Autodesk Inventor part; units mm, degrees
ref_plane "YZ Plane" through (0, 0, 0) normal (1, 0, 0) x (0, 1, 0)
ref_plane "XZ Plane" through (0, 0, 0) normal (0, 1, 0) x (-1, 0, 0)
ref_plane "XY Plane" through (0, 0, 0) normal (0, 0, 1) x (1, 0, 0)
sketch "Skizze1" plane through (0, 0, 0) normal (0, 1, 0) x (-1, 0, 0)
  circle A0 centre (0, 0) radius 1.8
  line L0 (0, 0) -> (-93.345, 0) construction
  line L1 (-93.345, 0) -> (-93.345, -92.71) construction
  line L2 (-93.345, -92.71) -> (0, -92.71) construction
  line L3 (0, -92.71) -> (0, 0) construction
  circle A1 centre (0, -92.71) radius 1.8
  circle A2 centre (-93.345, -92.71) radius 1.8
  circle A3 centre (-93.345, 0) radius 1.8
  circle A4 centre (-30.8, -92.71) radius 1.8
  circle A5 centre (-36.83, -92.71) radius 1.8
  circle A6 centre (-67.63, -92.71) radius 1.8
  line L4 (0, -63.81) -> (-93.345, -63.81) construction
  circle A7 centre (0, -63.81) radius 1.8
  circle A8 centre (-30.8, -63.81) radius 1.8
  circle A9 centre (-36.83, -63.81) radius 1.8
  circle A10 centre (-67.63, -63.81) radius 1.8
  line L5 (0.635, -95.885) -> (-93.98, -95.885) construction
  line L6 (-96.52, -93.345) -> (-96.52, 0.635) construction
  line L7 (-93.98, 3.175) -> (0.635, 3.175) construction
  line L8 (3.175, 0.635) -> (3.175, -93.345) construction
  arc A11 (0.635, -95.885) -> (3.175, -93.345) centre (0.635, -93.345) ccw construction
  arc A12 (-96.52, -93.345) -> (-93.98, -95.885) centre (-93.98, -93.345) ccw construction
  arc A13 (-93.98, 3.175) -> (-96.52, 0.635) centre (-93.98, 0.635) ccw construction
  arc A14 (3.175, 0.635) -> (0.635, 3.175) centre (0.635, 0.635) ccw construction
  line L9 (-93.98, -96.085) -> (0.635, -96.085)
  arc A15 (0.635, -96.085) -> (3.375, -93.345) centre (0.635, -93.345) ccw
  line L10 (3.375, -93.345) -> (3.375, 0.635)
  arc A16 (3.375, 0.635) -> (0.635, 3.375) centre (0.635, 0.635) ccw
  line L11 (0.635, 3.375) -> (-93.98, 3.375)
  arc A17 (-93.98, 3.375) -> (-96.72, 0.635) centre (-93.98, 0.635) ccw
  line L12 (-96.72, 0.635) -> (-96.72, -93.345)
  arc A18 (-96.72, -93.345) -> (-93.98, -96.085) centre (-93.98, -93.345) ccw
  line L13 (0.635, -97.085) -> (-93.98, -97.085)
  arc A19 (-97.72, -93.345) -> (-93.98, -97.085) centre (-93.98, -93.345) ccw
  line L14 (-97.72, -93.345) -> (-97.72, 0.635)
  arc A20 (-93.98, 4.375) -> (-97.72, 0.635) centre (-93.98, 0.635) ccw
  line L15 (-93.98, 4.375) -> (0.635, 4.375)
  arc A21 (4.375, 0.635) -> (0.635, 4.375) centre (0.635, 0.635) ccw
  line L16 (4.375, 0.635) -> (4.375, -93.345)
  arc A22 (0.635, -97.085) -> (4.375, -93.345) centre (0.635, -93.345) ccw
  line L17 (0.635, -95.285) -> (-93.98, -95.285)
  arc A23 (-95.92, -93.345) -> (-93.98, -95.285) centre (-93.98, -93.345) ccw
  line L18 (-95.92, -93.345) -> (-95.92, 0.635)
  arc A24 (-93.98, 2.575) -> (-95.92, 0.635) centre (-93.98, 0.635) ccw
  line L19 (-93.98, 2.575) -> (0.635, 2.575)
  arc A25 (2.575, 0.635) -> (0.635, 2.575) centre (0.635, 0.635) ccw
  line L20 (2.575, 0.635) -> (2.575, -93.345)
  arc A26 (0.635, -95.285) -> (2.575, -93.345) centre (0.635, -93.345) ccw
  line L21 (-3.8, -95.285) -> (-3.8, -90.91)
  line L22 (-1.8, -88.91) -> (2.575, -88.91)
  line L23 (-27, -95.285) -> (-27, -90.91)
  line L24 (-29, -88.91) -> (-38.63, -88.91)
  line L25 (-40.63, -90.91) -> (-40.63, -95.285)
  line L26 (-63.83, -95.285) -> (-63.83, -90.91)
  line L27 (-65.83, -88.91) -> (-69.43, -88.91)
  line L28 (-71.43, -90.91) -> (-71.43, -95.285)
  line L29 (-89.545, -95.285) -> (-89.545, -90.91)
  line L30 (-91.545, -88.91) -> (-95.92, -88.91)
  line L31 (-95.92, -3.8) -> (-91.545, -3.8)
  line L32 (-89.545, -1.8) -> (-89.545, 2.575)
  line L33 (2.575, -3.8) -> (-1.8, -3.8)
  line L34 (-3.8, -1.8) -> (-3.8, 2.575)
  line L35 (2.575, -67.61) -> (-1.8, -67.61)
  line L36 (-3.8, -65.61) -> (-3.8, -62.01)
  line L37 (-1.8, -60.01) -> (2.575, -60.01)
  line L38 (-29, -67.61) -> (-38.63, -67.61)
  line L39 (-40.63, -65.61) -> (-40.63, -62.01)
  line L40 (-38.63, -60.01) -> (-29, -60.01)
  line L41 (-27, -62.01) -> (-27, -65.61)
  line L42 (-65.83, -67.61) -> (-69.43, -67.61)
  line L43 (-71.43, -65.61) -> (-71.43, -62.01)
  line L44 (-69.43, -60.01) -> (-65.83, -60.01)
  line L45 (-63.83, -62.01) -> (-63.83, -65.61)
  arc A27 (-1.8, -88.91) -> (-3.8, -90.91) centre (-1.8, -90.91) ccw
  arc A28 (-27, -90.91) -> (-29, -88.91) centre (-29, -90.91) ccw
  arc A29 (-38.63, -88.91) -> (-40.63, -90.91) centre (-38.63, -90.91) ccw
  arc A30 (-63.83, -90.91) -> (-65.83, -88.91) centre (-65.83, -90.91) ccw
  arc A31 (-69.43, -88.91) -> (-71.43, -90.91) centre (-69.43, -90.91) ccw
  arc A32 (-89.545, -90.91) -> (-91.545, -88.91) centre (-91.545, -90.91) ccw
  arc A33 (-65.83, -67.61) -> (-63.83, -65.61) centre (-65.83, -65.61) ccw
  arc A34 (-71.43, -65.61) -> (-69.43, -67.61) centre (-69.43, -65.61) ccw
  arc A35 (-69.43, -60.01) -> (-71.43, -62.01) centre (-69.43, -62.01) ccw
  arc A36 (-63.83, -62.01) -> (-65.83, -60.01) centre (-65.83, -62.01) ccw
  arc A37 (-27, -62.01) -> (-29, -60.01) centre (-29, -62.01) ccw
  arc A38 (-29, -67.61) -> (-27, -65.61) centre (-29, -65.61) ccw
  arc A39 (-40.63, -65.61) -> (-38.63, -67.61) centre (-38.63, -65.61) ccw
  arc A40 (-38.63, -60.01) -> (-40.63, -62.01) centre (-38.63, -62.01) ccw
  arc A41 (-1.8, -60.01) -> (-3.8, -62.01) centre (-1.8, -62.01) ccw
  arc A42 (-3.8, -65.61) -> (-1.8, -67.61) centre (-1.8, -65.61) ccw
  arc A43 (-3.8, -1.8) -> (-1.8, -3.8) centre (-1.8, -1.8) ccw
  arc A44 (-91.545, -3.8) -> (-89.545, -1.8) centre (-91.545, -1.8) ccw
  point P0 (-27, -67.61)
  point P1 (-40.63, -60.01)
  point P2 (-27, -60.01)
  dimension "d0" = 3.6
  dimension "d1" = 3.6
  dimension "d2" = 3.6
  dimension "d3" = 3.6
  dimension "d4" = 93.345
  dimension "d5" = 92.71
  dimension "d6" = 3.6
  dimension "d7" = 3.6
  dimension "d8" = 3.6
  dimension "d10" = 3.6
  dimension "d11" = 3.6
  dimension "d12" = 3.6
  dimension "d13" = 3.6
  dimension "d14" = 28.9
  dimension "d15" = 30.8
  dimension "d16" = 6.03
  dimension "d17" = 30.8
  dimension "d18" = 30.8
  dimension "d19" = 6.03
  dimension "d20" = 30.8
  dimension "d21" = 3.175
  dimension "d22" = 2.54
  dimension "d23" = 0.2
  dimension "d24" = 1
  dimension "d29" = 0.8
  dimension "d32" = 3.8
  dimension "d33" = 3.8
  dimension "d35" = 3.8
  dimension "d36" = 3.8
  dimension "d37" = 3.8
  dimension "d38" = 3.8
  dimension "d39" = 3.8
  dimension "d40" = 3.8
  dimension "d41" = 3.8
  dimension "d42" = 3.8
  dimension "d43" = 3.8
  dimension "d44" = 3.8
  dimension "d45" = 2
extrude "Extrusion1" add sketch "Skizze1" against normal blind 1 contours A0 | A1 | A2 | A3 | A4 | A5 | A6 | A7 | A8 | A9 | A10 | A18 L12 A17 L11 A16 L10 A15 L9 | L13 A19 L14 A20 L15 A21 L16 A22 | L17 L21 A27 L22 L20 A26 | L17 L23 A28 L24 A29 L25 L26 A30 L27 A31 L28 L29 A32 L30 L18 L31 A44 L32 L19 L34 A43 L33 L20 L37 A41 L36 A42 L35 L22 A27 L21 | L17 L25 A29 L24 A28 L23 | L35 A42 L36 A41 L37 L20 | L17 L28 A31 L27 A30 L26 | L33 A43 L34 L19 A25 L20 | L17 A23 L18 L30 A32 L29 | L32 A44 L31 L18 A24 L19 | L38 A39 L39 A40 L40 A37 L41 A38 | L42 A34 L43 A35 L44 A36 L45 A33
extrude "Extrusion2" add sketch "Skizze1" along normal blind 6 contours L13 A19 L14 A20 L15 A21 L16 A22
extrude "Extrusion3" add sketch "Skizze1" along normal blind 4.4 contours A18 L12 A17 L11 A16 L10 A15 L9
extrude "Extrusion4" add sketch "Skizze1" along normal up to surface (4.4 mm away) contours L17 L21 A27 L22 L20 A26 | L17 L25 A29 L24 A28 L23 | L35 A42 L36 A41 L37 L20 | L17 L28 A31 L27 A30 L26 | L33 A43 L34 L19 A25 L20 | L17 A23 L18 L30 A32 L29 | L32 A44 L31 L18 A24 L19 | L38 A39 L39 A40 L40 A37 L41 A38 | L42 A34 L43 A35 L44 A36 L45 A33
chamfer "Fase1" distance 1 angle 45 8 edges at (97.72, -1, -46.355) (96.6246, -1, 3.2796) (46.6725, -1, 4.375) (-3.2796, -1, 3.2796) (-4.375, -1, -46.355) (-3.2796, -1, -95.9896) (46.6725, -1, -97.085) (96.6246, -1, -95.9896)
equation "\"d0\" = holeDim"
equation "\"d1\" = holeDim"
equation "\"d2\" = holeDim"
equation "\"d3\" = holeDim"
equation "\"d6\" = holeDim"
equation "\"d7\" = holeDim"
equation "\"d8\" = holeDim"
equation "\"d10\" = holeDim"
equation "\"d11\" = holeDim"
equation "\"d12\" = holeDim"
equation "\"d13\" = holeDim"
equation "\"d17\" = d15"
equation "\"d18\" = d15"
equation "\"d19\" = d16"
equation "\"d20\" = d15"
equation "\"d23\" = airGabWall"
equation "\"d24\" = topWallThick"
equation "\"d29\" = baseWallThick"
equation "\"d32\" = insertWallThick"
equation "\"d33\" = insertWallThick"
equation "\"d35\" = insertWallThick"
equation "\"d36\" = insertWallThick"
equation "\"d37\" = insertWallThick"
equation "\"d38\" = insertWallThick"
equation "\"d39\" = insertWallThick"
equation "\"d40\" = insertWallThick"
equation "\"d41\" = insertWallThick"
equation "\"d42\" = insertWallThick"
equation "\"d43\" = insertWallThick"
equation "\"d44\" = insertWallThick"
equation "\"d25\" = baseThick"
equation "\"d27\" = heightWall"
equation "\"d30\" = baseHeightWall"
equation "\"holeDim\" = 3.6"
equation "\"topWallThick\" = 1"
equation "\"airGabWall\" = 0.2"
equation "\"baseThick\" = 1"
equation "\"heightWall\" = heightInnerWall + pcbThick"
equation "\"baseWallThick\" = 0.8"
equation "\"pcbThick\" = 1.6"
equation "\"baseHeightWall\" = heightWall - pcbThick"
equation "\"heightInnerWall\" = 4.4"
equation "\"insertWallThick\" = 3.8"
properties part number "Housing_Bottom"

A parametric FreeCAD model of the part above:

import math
import FreeCAD as App
import Part
import Sketcher


def edges_at(feature, points):
    """Names of the edges that pass closest to the given points."""
    edges = feature.Shape.Edges
    near = lambda p: min(range(len(edges)), key=lambda i: edges[i].distToShape(Part.Vertex(*p))[0])
    return sorted({f"Edge{near(p) + 1}" for p in points})

doc = App.newDocument("Part")
body = doc.addObject("PartDesign::Body", "Body")

sketch1 = body.newObject("Sketcher::SketchObject", "Sketch")
sketch1.AttachmentSupport = (doc.getObject("XZ_Plane"), [""])
sketch1.MapMode = "FlatFace"
sketch1.addGeometry(Part.LineSegment(App.Vector(94, -97.1, 0), App.Vector(-0.6, -97.1, 0)), False)
sketch1.addGeometry(Part.ArcOfCircle(Part.Circle(App.Vector(-0.6, -93.3, 0), App.Vector(0, 0, 1), 3.7), math.radians(180), math.radians(270)), False)
sketch1.addGeometry(Part.LineSegment(App.Vector(-4.4, -93.3, 0), App.Vector(-4.4, 0.6, 0)), False)
sketch1.addGeometry(Part.ArcOfCircle(Part.Circle(App.Vector(-0.6, 0.6, 0), App.Vector(0, 0, 1), 3.7), math.radians(90), math.radians(180)), False)
sketch1.addGeometry(Part.LineSegment(App.Vector(-0.6, 4.4, 0), App.Vector(94, 4.4, 0)), False)
sketch1.addGeometry(Part.ArcOfCircle(Part.Circle(App.Vector(94, 0.6, 0), App.Vector(0, 0, 1), 3.7), math.radians(0), math.radians(90)), False)
sketch1.addGeometry(Part.LineSegment(App.Vector(97.7, 0.6, 0), App.Vector(97.7, -93.3, 0)), False)
sketch1.addGeometry(Part.ArcOfCircle(Part.Circle(App.Vector(94, -93.3, 0), App.Vector(0, 0, 1), 3.7), math.radians(-90), math.radians(0)), False)
sketch1.addConstraint(Sketcher.Constraint("Tangent", 0, 2, 1, 2))
sketch1.addConstraint(Sketcher.Constraint("Tangent", 1, 1, 2, 1))
sketch1.addConstraint(Sketcher.Constraint("Tangent", 2, 2, 3, 2))
sketch1.addConstraint(Sketcher.Constraint("Tangent", 3, 1, 4, 1))
sketch1.addConstraint(Sketcher.Constraint("Tangent", 4, 2, 5, 2))
sketch1.addConstraint(Sketcher.Constraint("Tangent", 5, 1, 6, 1))
sketch1.addConstraint(Sketcher.Constraint("Tangent", 6, 2, 7, 2))
sketch1.addConstraint(Sketcher.Constraint("Tangent", 7, 1, 0, 1))
sketch1.addConstraint(Sketcher.Constraint("Horizontal", 0))
sketch1.addConstraint(Sketcher.Constraint("Vertical", 2))
sketch1.addConstraint(Sketcher.Constraint("Horizontal", 4))
sketch1.addConstraint(Sketcher.Constraint("Vertical", 6))
sketch1.addConstraint(Sketcher.Constraint("Equal", 1, 3))
sketch1.addConstraint(Sketcher.Constraint("Equal", 3, 5))
sketch1.addConstraint(Sketcher.Constraint("Equal", 5, 7))
sketch1.addConstraint(Sketcher.Constraint("Radius", 1, 3.74))
sketch1.addConstraint(Sketcher.Constraint("DistanceY", 1, 3, -1, 1, 93.345))
sketch1.addConstraint(Sketcher.Constraint("DistanceY", 2, 1, 2, 2, 93.98))
sketch1.addConstraint(Sketcher.Constraint("DistanceX", 0, 2, 0, 1, 94.615))
sketch1.addConstraint(Sketcher.Constraint("DistanceX", -1, 1, 5, 3, 93.98))
pad1 = body.newObject("PartDesign::Pad", "Pad")
pad1.Profile = sketch1
pad1.Length = 1

sketch2 = body.newObject("Sketcher::SketchObject", "Sketch001")
sketch2.AttachmentSupport = (doc.getObject("XZ_Plane"), [""])
sketch2.MapMode = "FlatFace"
sketch2.addGeometry(Part.LineSegment(App.Vector(94, -97.1, 0), App.Vector(-0.6, -97.1, 0)), False)
sketch2.addGeometry(Part.ArcOfCircle(Part.Circle(App.Vector(-0.6, -93.3, 0), App.Vector(0, 0, 1), 3.7), math.radians(180), math.radians(270)), False)
sketch2.addGeometry(Part.LineSegment(App.Vector(-4.4, -93.3, 0), App.Vector(-4.4, 0.6, 0)), False)
sketch2.addGeometry(Part.ArcOfCircle(Part.Circle(App.Vector(-0.6, 0.6, 0), App.Vector(0, 0, 1), 3.7), math.radians(90), math.radians(180)), False)
sketch2.addGeometry(Part.LineSegment(App.Vector(-0.6, 4.4, 0), App.Vector(94, 4.4, 0)), False)
sketch2.addGeometry(Part.ArcOfCircle(Part.Circle(App.Vector(94, 0.6, 0), App.Vector(0, 0, 1), 3.7), math.radians(0), math.radians(90)), False)
sketch2.addGeometry(Part.LineSegment(App.Vector(97.7, 0.6, 0), App.Vector(97.7, -93.3, 0)), False)
sketch2.addGeometry(Part.ArcOfCircle(Part.Circle(App.Vector(94, -93.3, 0), App.Vector(0, 0, 1), 3.7), math.radians(-90), math.radians(0)), False)
sketch2.addGeometry(Part.LineSegment(App.Vector(-0.6, -96.1, 0), App.Vector(94, -96.1, 0)), False)
sketch2.addGeometry(Part.ArcOfCircle(Part.Circle(App.Vector(94, -93.3, 0), App.Vector(0, 0, 1), 2.7), math.radians(-90), math.radians(0)), False)
sketch2.addGeometry(Part.LineSegment(App.Vector(96.7, -93.3, 0), App.Vector(96.7, 0.6, 0)), False)
sketch2.addGeometry(Part.ArcOfCircle(Part.Circle(App.Vector(94, 0.6, 0), App.Vector(0, 0, 1), 2.7), math.radians(0), math.radians(90)), False)
sketch2.addGeometry(Part.LineSegment(App.Vector(94, 3.4, 0), App.Vector(-0.6, 3.4, 0)), False)
sketch2.addGeometry(Part.ArcOfCircle(Part.Circle(App.Vector(-0.6, 0.6, 0), App.Vector(0, 0, 1), 2.7), math.radians(90), math.radians(180)), False)
sketch2.addGeometry(Part.LineSegment(App.Vector(-3.4, 0.6, 0), App.Vector(-3.4, -93.3, 0)), False)
sketch2.addGeometry(Part.ArcOfCircle(Part.Circle(App.Vector(-0.6, -93.3, 0), App.Vector(0, 0, 1), 2.7), math.radians(180), math.radians(270)), False)
sketch2.addConstraint(Sketcher.Constraint("Tangent", 0, 2, 1, 2))
sketch2.addConstraint(Sketcher.Constraint("Tangent", 1, 1, 2, 1))
sketch2.addConstraint(Sketcher.Constraint("Tangent", 2, 2, 3, 2))
sketch2.addConstraint(Sketcher.Constraint("Tangent", 3, 1, 4, 1))
sketch2.addConstraint(Sketcher.Constraint("Tangent", 4, 2, 5, 2))
sketch2.addConstraint(Sketcher.Constraint("Tangent", 5, 1, 6, 1))
sketch2.addConstraint(Sketcher.Constraint("Tangent", 6, 2, 7, 2))
sketch2.addConstraint(Sketcher.Constraint("Tangent", 7, 1, 0, 1))
sketch2.addConstraint(Sketcher.Constraint("Tangent", 8, 2, 9, 1))
sketch2.addConstraint(Sketcher.Constraint("Tangent", 9, 2, 10, 1))
sketch2.addConstraint(Sketcher.Constraint("Tangent", 10, 2, 11, 1))
sketch2.addConstraint(Sketcher.Constraint("Tangent", 11, 2, 12, 1))
sketch2.addConstraint(Sketcher.Constraint("Tangent", 12, 2, 13, 1))
sketch2.addConstraint(Sketcher.Constraint("Tangent", 13, 2, 14, 1))
sketch2.addConstraint(Sketcher.Constraint("Tangent", 14, 2, 15, 1))
sketch2.addConstraint(Sketcher.Constraint("Tangent", 15, 2, 8, 1))
sketch2.addConstraint(Sketcher.Constraint("Horizontal", 0))
sketch2.addConstraint(Sketcher.Constraint("Vertical", 2))
sketch2.addConstraint(Sketcher.Constraint("Horizontal", 4))
sketch2.addConstraint(Sketcher.Constraint("Vertical", 6))
sketch2.addConstraint(Sketcher.Constraint("Horizontal", 8))
sketch2.addConstraint(Sketcher.Constraint("Vertical", 10))
sketch2.addConstraint(Sketcher.Constraint("Horizontal", 12))
sketch2.addConstraint(Sketcher.Constraint("Vertical", 14))
sketch2.addConstraint(Sketcher.Constraint("Coincident", 9, 3, 7, 3))
sketch2.addConstraint(Sketcher.Constraint("Coincident", 11, 3, 5, 3))
sketch2.addConstraint(Sketcher.Constraint("Coincident", 13, 3, 3, 3))
sketch2.addConstraint(Sketcher.Constraint("Equal", 1, 3))
sketch2.addConstraint(Sketcher.Constraint("Equal", 3, 5))
sketch2.addConstraint(Sketcher.Constraint("Equal", 5, 7))
sketch2.addConstraint(Sketcher.Constraint("Equal", 13, 15))
sketch2.addConstraint(Sketcher.Constraint("DistanceY", 7, 1, 8, 2, 1.0))
sketch2.addConstraint(Sketcher.Constraint("Radius", 1, 3.74))
sketch2.addConstraint(Sketcher.Constraint("DistanceY", 1, 3, -1, 1, 93.345))
sketch2.addConstraint(Sketcher.Constraint("DistanceY", 2, 1, 2, 2, 93.98))
sketch2.addConstraint(Sketcher.Constraint("DistanceX", 0, 2, 0, 1, 94.615))
sketch2.addConstraint(Sketcher.Constraint("DistanceX", -1, 1, 5, 3, 93.98))
pad2 = body.newObject("PartDesign::Pad", "Pad001")
pad2.Profile = sketch2
pad2.Length = 6
pad2.Reversed = True

sketch3 = body.newObject("Sketcher::SketchObject", "Sketch002")
sketch3.AttachmentSupport = (doc.getObject("XZ_Plane"), [""])
sketch3.MapMode = "FlatFace"
sketch3.addGeometry(Part.ArcOfCircle(Part.Circle(App.Vector(94, -93.3, 0), App.Vector(0, 0, 1), 2.7), math.radians(-90), math.radians(0)), False)
sketch3.addGeometry(Part.LineSegment(App.Vector(94, -96.1, 0), App.Vector(-0.6, -96.1, 0)), False)
sketch3.addGeometry(Part.ArcOfCircle(Part.Circle(App.Vector(-0.6, -93.3, 0), App.Vector(0, 0, 1), 2.7), math.radians(180), math.radians(270)), False)
sketch3.addGeometry(Part.LineSegment(App.Vector(-3.4, -93.3, 0), App.Vector(-3.4, 0.6, 0)), False)
sketch3.addGeometry(Part.ArcOfCircle(Part.Circle(App.Vector(-0.6, 0.6, 0), App.Vector(0, 0, 1), 2.7), math.radians(90), math.radians(180)), False)
sketch3.addGeometry(Part.LineSegment(App.Vector(-0.6, 3.4, 0), App.Vector(94, 3.4, 0)), False)
sketch3.addGeometry(Part.ArcOfCircle(Part.Circle(App.Vector(94, 0.6, 0), App.Vector(0, 0, 1), 2.7), math.radians(0), math.radians(90)), False)
sketch3.addGeometry(Part.LineSegment(App.Vector(96.7, 0.6, 0), App.Vector(96.7, -93.3, 0)), False)
sketch3.addGeometry(Part.ArcOfCircle(Part.Circle(App.Vector(-0.6, -93.3, 0), App.Vector(0, 0, 1), 1.9), math.radians(180), math.radians(270)), False)
sketch3.addGeometry(Part.LineSegment(App.Vector(-0.6, -95.3, 0), App.Vector(94, -95.3, 0)), False)
sketch3.addGeometry(Part.ArcOfCircle(Part.Circle(App.Vector(94, -93.3, 0), App.Vector(0, 0, 1), 1.9), math.radians(-90), math.radians(0)), False)
sketch3.addGeometry(Part.LineSegment(App.Vector(95.9, -93.3, 0), App.Vector(95.9, 0.6, 0)), False)
sketch3.addGeometry(Part.ArcOfCircle(Part.Circle(App.Vector(94, 0.6, 0), App.Vector(0, 0, 1), 1.9), math.radians(0), math.radians(90)), False)
sketch3.addGeometry(Part.LineSegment(App.Vector(94, 2.6, 0), App.Vector(-0.6, 2.6, 0)), False)
sketch3.addGeometry(Part.ArcOfCircle(Part.Circle(App.Vector(-0.6, 0.6, 0), App.Vector(0, 0, 1), 1.9), math.radians(90), math.radians(180)), False)
sketch3.addGeometry(Part.LineSegment(App.Vector(-2.6, 0.6, 0), App.Vector(-2.6, -93.3, 0)), False)
sketch3.addConstraint(Sketcher.Constraint("Tangent", 0, 1, 1, 1))
sketch3.addConstraint(Sketcher.Constraint("Tangent", 1, 2, 2, 2))
sketch3.addConstraint(Sketcher.Constraint("Tangent", 2, 1, 3, 1))
sketch3.addConstraint(Sketcher.Constraint("Tangent", 3, 2, 4, 2))
sketch3.addConstraint(Sketcher.Constraint("Tangent", 4, 1, 5, 1))
sketch3.addConstraint(Sketcher.Constraint("Tangent", 5, 2, 6, 2))
sketch3.addConstraint(Sketcher.Constraint("Tangent", 6, 1, 7, 1))
sketch3.addConstraint(Sketcher.Constraint("Tangent", 7, 2, 0, 2))
sketch3.addConstraint(Sketcher.Constraint("Tangent", 8, 2, 9, 1))
sketch3.addConstraint(Sketcher.Constraint("Tangent", 9, 2, 10, 1))
sketch3.addConstraint(Sketcher.Constraint("Tangent", 10, 2, 11, 1))
sketch3.addConstraint(Sketcher.Constraint("Tangent", 11, 2, 12, 1))
sketch3.addConstraint(Sketcher.Constraint("Tangent", 12, 2, 13, 1))
sketch3.addConstraint(Sketcher.Constraint("Tangent", 13, 2, 14, 1))
sketch3.addConstraint(Sketcher.Constraint("Tangent", 14, 2, 15, 1))
sketch3.addConstraint(Sketcher.Constraint("Tangent", 15, 2, 8, 1))
sketch3.addConstraint(Sketcher.Constraint("Horizontal", 1))
sketch3.addConstraint(Sketcher.Constraint("Vertical", 3))
sketch3.addConstraint(Sketcher.Constraint("Horizontal", 5))
sketch3.addConstraint(Sketcher.Constraint("Vertical", 7))
sketch3.addConstraint(Sketcher.Constraint("Horizontal", 9))
sketch3.addConstraint(Sketcher.Constraint("Vertical", 11))
sketch3.addConstraint(Sketcher.Constraint("Horizontal", 13))
sketch3.addConstraint(Sketcher.Constraint("Vertical", 15))
sketch3.addConstraint(Sketcher.Constraint("Coincident", 8, 3, 2, 3))
sketch3.addConstraint(Sketcher.Constraint("Coincident", 10, 3, 0, 3))
sketch3.addConstraint(Sketcher.Constraint("Coincident", 12, 3, 6, 3))
sketch3.addConstraint(Sketcher.Constraint("Equal", 0, 2))
sketch3.addConstraint(Sketcher.Constraint("Equal", 2, 4))
sketch3.addConstraint(Sketcher.Constraint("Equal", 4, 6))
sketch3.addConstraint(Sketcher.Constraint("Equal", 12, 14))
sketch3.addConstraint(Sketcher.Constraint("DistanceY", 1, 2, 8, 2, 0.8))
sketch3.addConstraint(Sketcher.Constraint("Radius", 0, 2.74))
sketch3.addConstraint(Sketcher.Constraint("DistanceY", 0, 3, -1, 1, 93.345))
sketch3.addConstraint(Sketcher.Constraint("DistanceY", 3, 1, 3, 2, 93.98))
sketch3.addConstraint(Sketcher.Constraint("DistanceX", 1, 2, 1, 1, 94.615))
sketch3.addConstraint(Sketcher.Constraint("DistanceX", -1, 1, 0, 3, 93.98))
pad3 = body.newObject("PartDesign::Pad", "Pad002")
pad3.Profile = sketch3
pad3.Length = 4.4
pad3.Reversed = True

sketch4 = body.newObject("Sketcher::SketchObject", "Sketch003")
sketch4.AttachmentSupport = (doc.getObject("XZ_Plane"), [""])
sketch4.MapMode = "FlatFace"
sketch4.addGeometry(Part.LineSegment(App.Vector(3.8, -95.3, 0), App.Vector(-0.6, -95.3, 0)), False)
sketch4.addGeometry(Part.ArcOfCircle(Part.Circle(App.Vector(-0.6, -93.3, 0), App.Vector(0, 0, 1), 1.9), math.radians(180), math.radians(270)), False)
sketch4.addGeometry(Part.LineSegment(App.Vector(-2.6, -93.3, 0), App.Vector(-2.6, -88.9, 0)), False)
sketch4.addGeometry(Part.LineSegment(App.Vector(-2.6, -88.9, 0), App.Vector(1.8, -88.9, 0)), False)
sketch4.addGeometry(Part.ArcOfCircle(Part.Circle(App.Vector(1.8, -90.9, 0), App.Vector(0, 0, 1), 2), math.radians(0), math.radians(90)), False)
sketch4.addGeometry(Part.LineSegment(App.Vector(3.8, -90.9, 0), App.Vector(3.8, -95.3, 0)), False)
sketch4.addGeometry(Part.Circle(App.Vector(0, -92.7, 0), App.Vector(0, 0, 1), 1.8), False)
sketch4.addGeometry(Part.LineSegment(App.Vector(40.6, -95.3, 0), App.Vector(27, -95.3, 0)), False)
sketch4.addGeometry(Part.LineSegment(App.Vector(27, -95.3, 0), App.Vector(27, -90.9, 0)), False)
sketch4.addGeometry(Part.ArcOfCircle(Part.Circle(App.Vector(29, -90.9, 0), App.Vector(0, 0, 1), 2), math.radians(90), math.radians(180)), False)
sketch4.addGeometry(Part.LineSegment(App.Vector(29, -88.9, 0), App.Vector(38.6, -88.9, 0)), False)
sketch4.addGeometry(Part.ArcOfCircle(Part.Circle(App.Vector(38.6, -90.9, 0), App.Vector(0, 0, 1), 2), math.radians(0), math.radians(90)), False)
sketch4.addGeometry(Part.LineSegment(App.Vector(40.6, -90.9, 0), App.Vector(40.6, -95.3, 0)), False)
sketch4.addGeometry(Part.Circle(App.Vector(36.8, -92.7, 0), App.Vector(0, 0, 1), 1.8), False)
sketch4.addGeometry(Part.Circle(App.Vector(30.8, -92.7, 0), App.Vector(0, 0, 1), 1.8), False)
sketch4.addGeometry(Part.LineSegment(App.Vector(1.8, -67.6, 0), App.Vector(-2.6, -67.6, 0)), False)
sketch4.addGeometry(Part.LineSegment(App.Vector(-2.6, -67.6, 0), App.Vector(-2.6, -60, 0)), False)
sketch4.addGeometry(Part.LineSegment(App.Vector(-2.6, -60, 0), App.Vector(1.8, -60, 0)), False)
sketch4.addGeometry(Part.ArcOfCircle(Part.Circle(App.Vector(1.8, -62, 0), App.Vector(0, 0, 1), 2), math.radians(0), math.radians(90)), False)
sketch4.addGeometry(Part.LineSegment(App.Vector(3.8, -62, 0), App.Vector(3.8, -65.6, 0)), False)
sketch4.addGeometry(Part.ArcOfCircle(Part.Circle(App.Vector(1.8, -65.6, 0), App.Vector(0, 0, 1), 2), math.radians(-90), math.radians(0)), False)
sketch4.addGeometry(Part.Circle(App.Vector(0, -63.8, 0), App.Vector(0, 0, 1), 1.8), False)
sketch4.addGeometry(Part.LineSegment(App.Vector(71.4, -95.3, 0), App.Vector(63.8, -95.3, 0)), False)
sketch4.addGeometry(Part.LineSegment(App.Vector(63.8, -95.3, 0), App.Vector(63.8, -90.9, 0)), False)
sketch4.addGeometry(Part.ArcOfCircle(Part.Circle(App.Vector(65.8, -90.9, 0), App.Vector(0, 0, 1), 2), math.radians(90), math.radians(180)), False)
sketch4.addGeometry(Part.LineSegment(App.Vector(65.8, -88.9, 0), App.Vector(69.4, -88.9, 0)), False)
sketch4.addGeometry(Part.ArcOfCircle(Part.Circle(App.Vector(69.4, -90.9, 0), App.Vector(0, 0, 1), 2), math.radians(0), math.radians(90)), False)
sketch4.addGeometry(Part.LineSegment(App.Vector(71.4, -90.9, 0), App.Vector(71.4, -95.3, 0)), False)
sketch4.addGeometry(Part.Circle(App.Vector(67.6, -92.7, 0), App.Vector(0, 0, 1), 1.8), False)
sketch4.addGeometry(Part.LineSegment(App.Vector(1.8, -3.8, 0), App.Vector(-2.6, -3.8, 0)), False)
sketch4.addGeometry(Part.LineSegment(App.Vector(-2.6, -3.8, 0), App.Vector(-2.6, 0.6, 0)), False)
sketch4.addGeometry(Part.ArcOfCircle(Part.Circle(App.Vector(-0.6, 0.6, 0), App.Vector(0, 0, 1), 1.9), math.radians(90), math.radians(180)), False)
sketch4.addGeometry(Part.LineSegment(App.Vector(-0.6, 2.6, 0), App.Vector(3.8, 2.6, 0)), False)
sketch4.addGeometry(Part.LineSegment(App.Vector(3.8, 2.6, 0), App.Vector(3.8, -1.8, 0)), False)
sketch4.addGeometry(Part.ArcOfCircle(Part.Circle(App.Vector(1.8, -1.8, 0), App.Vector(0, 0, 1), 2), math.radians(-90), math.radians(0)), False)
sketch4.addGeometry(Part.Circle(App.Vector(0, 0, 0), App.Vector(0, 0, 1), 1.8), False)
sketch4.addGeometry(Part.LineSegment(App.Vector(94, -95.3, 0), App.Vector(89.5, -95.3, 0)), False)
sketch4.addGeometry(Part.LineSegment(App.Vector(89.5, -95.3, 0), App.Vector(89.5, -90.9, 0)), False)
sketch4.addGeometry(Part.ArcOfCircle(Part.Circle(App.Vector(91.5, -90.9, 0), App.Vector(0, 0, 1), 2), math.radians(90), math.radians(180)), False)
sketch4.addGeometry(Part.LineSegment(App.Vector(91.5, -88.9, 0), App.Vector(95.9, -88.9, 0)), False)
sketch4.addGeometry(Part.LineSegment(App.Vector(95.9, -88.9, 0), App.Vector(95.9, -93.3, 0)), False)
sketch4.addGeometry(Part.ArcOfCircle(Part.Circle(App.Vector(94, -93.3, 0), App.Vector(0, 0, 1), 1.9), math.radians(-90), math.radians(0)), False)
sketch4.addGeometry(Part.Circle(App.Vector(93.3, -92.7, 0), App.Vector(0, 0, 1), 1.8), False)
sketch4.addGeometry(Part.LineSegment(App.Vector(89.5, -1.8, 0), App.Vector(89.5, 2.6, 0)), False)
sketch4.addGeometry(Part.LineSegment(App.Vector(89.5, 2.6, 0), App.Vector(94, 2.6, 0)), False)
sketch4.addGeometry(Part.ArcOfCircle(Part.Circle(App.Vector(94, 0.6, 0), App.Vector(0, 0, 1), 1.9), math.radians(0), math.radians(90)), False)
sketch4.addGeometry(Part.LineSegment(App.Vector(95.9, 0.6, 0), App.Vector(95.9, -3.8, 0)), False)
sketch4.addGeometry(Part.LineSegment(App.Vector(95.9, -3.8, 0), App.Vector(91.5, -3.8, 0)), False)
sketch4.addGeometry(Part.ArcOfCircle(Part.Circle(App.Vector(91.5, -1.8, 0), App.Vector(0, 0, 1), 2), math.radians(180), math.radians(270)), False)
sketch4.addGeometry(Part.Circle(App.Vector(93.3, 0, 0), App.Vector(0, 0, 1), 1.8), False)
sketch4.addGeometry(Part.LineSegment(App.Vector(38.6, -67.6, 0), App.Vector(29, -67.6, 0)), False)
sketch4.addGeometry(Part.ArcOfCircle(Part.Circle(App.Vector(29, -65.6, 0), App.Vector(0, 0, 1), 2), math.radians(180), math.radians(270)), False)
sketch4.addGeometry(Part.LineSegment(App.Vector(27, -65.6, 0), App.Vector(27, -62, 0)), False)
sketch4.addGeometry(Part.ArcOfCircle(Part.Circle(App.Vector(29, -62, 0), App.Vector(0, 0, 1), 2), math.radians(90), math.radians(180)), False)
sketch4.addGeometry(Part.LineSegment(App.Vector(29, -60, 0), App.Vector(38.6, -60, 0)), False)
sketch4.addGeometry(Part.ArcOfCircle(Part.Circle(App.Vector(38.6, -62, 0), App.Vector(0, 0, 1), 2), math.radians(0), math.radians(90)), False)
sketch4.addGeometry(Part.LineSegment(App.Vector(40.6, -62, 0), App.Vector(40.6, -65.6, 0)), False)
sketch4.addGeometry(Part.ArcOfCircle(Part.Circle(App.Vector(38.6, -65.6, 0), App.Vector(0, 0, 1), 2), math.radians(-90), math.radians(0)), False)
sketch4.addGeometry(Part.Circle(App.Vector(36.8, -63.8, 0), App.Vector(0, 0, 1), 1.8), False)
sketch4.addGeometry(Part.Circle(App.Vector(30.8, -63.8, 0), App.Vector(0, 0, 1), 1.8), False)
sketch4.addGeometry(Part.LineSegment(App.Vector(69.4, -67.6, 0), App.Vector(65.8, -67.6, 0)), False)
sketch4.addGeometry(Part.ArcOfCircle(Part.Circle(App.Vector(65.8, -65.6, 0), App.Vector(0, 0, 1), 2), math.radians(180), math.radians(270)), False)
sketch4.addGeometry(Part.LineSegment(App.Vector(63.8, -65.6, 0), App.Vector(63.8, -62, 0)), False)
sketch4.addGeometry(Part.ArcOfCircle(Part.Circle(App.Vector(65.8, -62, 0), App.Vector(0, 0, 1), 2), math.radians(90), math.radians(180)), False)
sketch4.addGeometry(Part.LineSegment(App.Vector(65.8, -60, 0), App.Vector(69.4, -60, 0)), False)
sketch4.addGeometry(Part.ArcOfCircle(Part.Circle(App.Vector(69.4, -62, 0), App.Vector(0, 0, 1), 2), math.radians(0), math.radians(90)), False)
sketch4.addGeometry(Part.LineSegment(App.Vector(71.4, -62, 0), App.Vector(71.4, -65.6, 0)), False)
sketch4.addGeometry(Part.ArcOfCircle(Part.Circle(App.Vector(69.4, -65.6, 0), App.Vector(0, 0, 1), 2), math.radians(-90), math.radians(0)), False)
sketch4.addGeometry(Part.Circle(App.Vector(67.6, -63.8, 0), App.Vector(0, 0, 1), 1.8), False)
sketch4.addConstraint(Sketcher.Constraint("Tangent", 0, 2, 1, 2))
sketch4.addConstraint(Sketcher.Constraint("Tangent", 1, 1, 2, 1))
sketch4.addConstraint(Sketcher.Constraint("Coincident", 2, 2, 3, 1))
sketch4.addConstraint(Sketcher.Constraint("Tangent", 3, 2, 4, 2))
sketch4.addConstraint(Sketcher.Constraint("Tangent", 4, 1, 5, 1))
sketch4.addConstraint(Sketcher.Constraint("Coincident", 5, 2, 0, 1))
sketch4.addConstraint(Sketcher.Constraint("Coincident", 7, 2, 8, 1))
sketch4.addConstraint(Sketcher.Constraint("Tangent", 8, 2, 9, 2))
sketch4.addConstraint(Sketcher.Constraint("Tangent", 9, 1, 10, 1))
sketch4.addConstraint(Sketcher.Constraint("Tangent", 10, 2, 11, 2))
sketch4.addConstraint(Sketcher.Constraint("Tangent", 11, 1, 12, 1))
sketch4.addConstraint(Sketcher.Constraint("Coincident", 12, 2, 7, 1))
sketch4.addConstraint(Sketcher.Constraint("Coincident", 15, 2, 16, 1))
sketch4.addConstraint(Sketcher.Constraint("Coincident", 16, 2, 17, 1))
sketch4.addConstraint(Sketcher.Constraint("Tangent", 17, 2, 18, 2))
sketch4.addConstraint(Sketcher.Constraint("Tangent", 18, 1, 19, 1))
sketch4.addConstraint(Sketcher.Constraint("Tangent", 19, 2, 20, 2))
sketch4.addConstraint(Sketcher.Constraint("Tangent", 20, 1, 15, 1))
sketch4.addConstraint(Sketcher.Constraint("Coincident", 22, 2, 23, 1))
sketch4.addConstraint(Sketcher.Constraint("Tangent", 23, 2, 24, 2))
sketch4.addConstraint(Sketcher.Constraint("Tangent", 24, 1, 25, 1))
sketch4.addConstraint(Sketcher.Constraint("Tangent", 25, 2, 26, 2))
sketch4.addConstraint(Sketcher.Constraint("Tangent", 26, 1, 27, 1))
sketch4.addConstraint(Sketcher.Constraint("Coincident", 27, 2, 22, 1))
sketch4.addConstraint(Sketcher.Constraint("Coincident", 29, 2, 30, 1))
sketch4.addConstraint(Sketcher.Constraint("Tangent", 30, 2, 31, 2))
sketch4.addConstraint(Sketcher.Constraint("Tangent", 31, 1, 32, 1))
sketch4.addConstraint(Sketcher.Constraint("Coincident", 32, 2, 33, 1))
sketch4.addConstraint(Sketcher.Constraint("Tangent", 33, 2, 34, 2))
sketch4.addConstraint(Sketcher.Constraint("Tangent", 34, 1, 29, 1))
sketch4.addConstraint(Sketcher.Constraint("Coincident", 36, 2, 37, 1))
sketch4.addConstraint(Sketcher.Constraint("Tangent", 37, 2, 38, 2))
sketch4.addConstraint(Sketcher.Constraint("Tangent", 38, 1, 39, 1))
sketch4.addConstraint(Sketcher.Constraint("Coincident", 39, 2, 40, 1))
sketch4.addConstraint(Sketcher.Constraint("Tangent", 40, 2, 41, 2))
sketch4.addConstraint(Sketcher.Constraint("Tangent", 41, 1, 36, 1))
sketch4.addConstraint(Sketcher.Constraint("Coincident", 43, 2, 44, 1))
sketch4.addConstraint(Sketcher.Constraint("Tangent", 44, 2, 45, 2))
sketch4.addConstraint(Sketcher.Constraint("Tangent", 45, 1, 46, 1))
sketch4.addConstraint(Sketcher.Constraint("Coincident", 46, 2, 47, 1))
sketch4.addConstraint(Sketcher.Constraint("Tangent", 47, 2, 48, 2))
sketch4.addConstraint(Sketcher.Constraint("Tangent", 48, 1, 43, 1))
sketch4.addConstraint(Sketcher.Constraint("Tangent", 50, 2, 51, 2))
sketch4.addConstraint(Sketcher.Constraint("Tangent", 51, 1, 52, 1))
sketch4.addConstraint(Sketcher.Constraint("Tangent", 52, 2, 53, 2))
sketch4.addConstraint(Sketcher.Constraint("Tangent", 53, 1, 54, 1))
sketch4.addConstraint(Sketcher.Constraint("Tangent", 54, 2, 55, 2))
sketch4.addConstraint(Sketcher.Constraint("Tangent", 55, 1, 56, 1))
sketch4.addConstraint(Sketcher.Constraint("Tangent", 56, 2, 57, 2))
sketch4.addConstraint(Sketcher.Constraint("Tangent", 57, 1, 50, 1))
sketch4.addConstraint(Sketcher.Constraint("Tangent", 60, 2, 61, 2))
sketch4.addConstraint(Sketcher.Constraint("Tangent", 61, 1, 62, 1))
sketch4.addConstraint(Sketcher.Constraint("Tangent", 62, 2, 63, 2))
sketch4.addConstraint(Sketcher.Constraint("Tangent", 63, 1, 64, 1))
sketch4.addConstraint(Sketcher.Constraint("Tangent", 64, 2, 65, 2))
sketch4.addConstraint(Sketcher.Constraint("Tangent", 65, 1, 66, 1))
sketch4.addConstraint(Sketcher.Constraint("Tangent", 66, 2, 67, 2))
sketch4.addConstraint(Sketcher.Constraint("Tangent", 67, 1, 60, 1))
sketch4.addConstraint(Sketcher.Constraint("Horizontal", 0))
sketch4.addConstraint(Sketcher.Constraint("Vertical", 2))
sketch4.addConstraint(Sketcher.Constraint("Horizontal", 3))
sketch4.addConstraint(Sketcher.Constraint("Vertical", 5))
sketch4.addConstraint(Sketcher.Constraint("Horizontal", 7))
sketch4.addConstraint(Sketcher.Constraint("Vertical", 8))
sketch4.addConstraint(Sketcher.Constraint("Horizontal", 10))
sketch4.addConstraint(Sketcher.Constraint("Vertical", 12))
sketch4.addConstraint(Sketcher.Constraint("Horizontal", 15))
sketch4.addConstraint(Sketcher.Constraint("Vertical", 16))
sketch4.addConstraint(Sketcher.Constraint("Horizontal", 17))
sketch4.addConstraint(Sketcher.Constraint("Vertical", 19))
sketch4.addConstraint(Sketcher.Constraint("Horizontal", 22))
sketch4.addConstraint(Sketcher.Constraint("Vertical", 23))
sketch4.addConstraint(Sketcher.Constraint("Horizontal", 25))
sketch4.addConstraint(Sketcher.Constraint("Vertical", 27))
sketch4.addConstraint(Sketcher.Constraint("Horizontal", 29))
sketch4.addConstraint(Sketcher.Constraint("Vertical", 30))
sketch4.addConstraint(Sketcher.Constraint("Horizontal", 32))
sketch4.addConstraint(Sketcher.Constraint("Vertical", 33))
sketch4.addConstraint(Sketcher.Constraint("Horizontal", 36))
sketch4.addConstraint(Sketcher.Constraint("Vertical", 37))
sketch4.addConstraint(Sketcher.Constraint("Horizontal", 39))
sketch4.addConstraint(Sketcher.Constraint("Vertical", 40))
sketch4.addConstraint(Sketcher.Constraint("Vertical", 43))
sketch4.addConstraint(Sketcher.Constraint("Horizontal", 44))
sketch4.addConstraint(Sketcher.Constraint("Vertical", 46))
sketch4.addConstraint(Sketcher.Constraint("Horizontal", 47))
sketch4.addConstraint(Sketcher.Constraint("Horizontal", 50))
sketch4.addConstraint(Sketcher.Constraint("Vertical", 52))
sketch4.addConstraint(Sketcher.Constraint("Horizontal", 54))
sketch4.addConstraint(Sketcher.Constraint("Vertical", 56))
sketch4.addConstraint(Sketcher.Constraint("Horizontal", 60))
sketch4.addConstraint(Sketcher.Constraint("Vertical", 62))
sketch4.addConstraint(Sketcher.Constraint("Horizontal", 64))
sketch4.addConstraint(Sketcher.Constraint("Vertical", 66))
sketch4.addConstraint(Sketcher.Constraint("Coincident", 35, 3, -1, 1))
sketch4.addConstraint(Sketcher.Constraint("Equal", 4, 9))
sketch4.addConstraint(Sketcher.Constraint("Equal", 9, 11))
sketch4.addConstraint(Sketcher.Constraint("Equal", 6, 13))
sketch4.addConstraint(Sketcher.Constraint("Equal", 13, 14))
sketch4.addConstraint(Sketcher.Constraint("Equal", 11, 18))
sketch4.addConstraint(Sketcher.Constraint("Equal", 18, 20))
sketch4.addConstraint(Sketcher.Constraint("Equal", 14, 21))
sketch4.addConstraint(Sketcher.Constraint("Equal", 20, 24))
sketch4.addConstraint(Sketcher.Constraint("Equal", 24, 26))
sketch4.addConstraint(Sketcher.Constraint("Equal", 21, 28))
sketch4.addConstraint(Sketcher.Constraint("Equal", 1, 31))
sketch4.addConstraint(Sketcher.Constraint("Equal", 26, 34))
sketch4.addConstraint(Sketcher.Constraint("Equal", 28, 35))
sketch4.addConstraint(Sketcher.Constraint("Equal", 34, 38))
sketch4.addConstraint(Sketcher.Constraint("Equal", 31, 41))
sketch4.addConstraint(Sketcher.Constraint("Equal", 35, 42))
sketch4.addConstraint(Sketcher.Constraint("Equal", 41, 45))
sketch4.addConstraint(Sketcher.Constraint("Equal", 38, 48))
sketch4.addConstraint(Sketcher.Constraint("Equal", 42, 49))
sketch4.addConstraint(Sketcher.Constraint("Equal", 48, 51))
sketch4.addConstraint(Sketcher.Constraint("Equal", 51, 53))
sketch4.addConstraint(Sketcher.Constraint("Equal", 53, 55))
sketch4.addConstraint(Sketcher.Constraint("Equal", 55, 57))
sketch4.addConstraint(Sketcher.Constraint("Equal", 49, 58))
sketch4.addConstraint(Sketcher.Constraint("Equal", 58, 59))
sketch4.addConstraint(Sketcher.Constraint("Equal", 57, 61))
sketch4.addConstraint(Sketcher.Constraint("Equal", 61, 63))
sketch4.addConstraint(Sketcher.Constraint("Equal", 63, 65))
sketch4.addConstraint(Sketcher.Constraint("Equal", 65, 67))
sketch4.addConstraint(Sketcher.Constraint("Equal", 59, 68))
sketch4.addConstraint(Sketcher.Constraint("PointOnObject", 6, 3, -2))
sketch4.addConstraint(Sketcher.Constraint("PointOnObject", 21, 3, -2))
sketch4.addConstraint(Sketcher.Constraint("PointOnObject", 49, 3, -1))
sketch4.addConstraint(Sketcher.Constraint("Horizontal", 4, 3, 9, 3))
sketch4.addConstraint(Sketcher.Constraint("Horizontal", 6, 3, 13, 3))
sketch4.addConstraint(Sketcher.Constraint("Horizontal", 13, 3, 14, 3))
sketch4.addConstraint(Sketcher.Constraint("Horizontal", 11, 3, 24, 3))
sketch4.addConstraint(Sketcher.Constraint("Horizontal", 14, 3, 28, 3))
sketch4.addConstraint(Sketcher.Constraint("Horizontal", 26, 3, 38, 3))
sketch4.addConstraint(Sketcher.Constraint("Horizontal", 1, 3, 41, 3))
sketch4.addConstraint(Sketcher.Constraint("Horizontal", 28, 3, 42, 3))
sketch4.addConstraint(Sketcher.Constraint("Horizontal", 31, 3, 45, 3))
sketch4.addConstraint(Sketcher.Constraint("Horizontal", 34, 3, 48, 3))
sketch4.addConstraint(Sketcher.Constraint("Horizontal", 20, 3, 51, 3))
sketch4.addConstraint(Sketcher.Constraint("Horizontal", 18, 3, 53, 3))
sketch4.addConstraint(Sketcher.Constraint("Horizontal", 21, 3, 58, 3))
sketch4.addConstraint(Sketcher.Constraint("Horizontal", 58, 3, 59, 3))
sketch4.addConstraint(Sketcher.Constraint("Horizontal", 57, 3, 61, 3))
sketch4.addConstraint(Sketcher.Constraint("Horizontal", 55, 3, 63, 3))
sketch4.addConstraint(Sketcher.Constraint("Horizontal", 59, 3, 68, 3))
sketch4.addConstraint(Sketcher.Constraint("Horizontal", 5, 2, 7, 2))
sketch4.addConstraint(Sketcher.Constraint("Horizontal", 12, 2, 22, 2))
sketch4.addConstraint(Sketcher.Constraint("Vertical", 4, 3, 18, 3))
sketch4.addConstraint(Sketcher.Constraint("Vertical", 1, 3, 31, 3))
sketch4.addConstraint(Sketcher.Constraint("Vertical", 20, 3, 34, 3))
sketch4.addConstraint(Sketcher.Constraint("Vertical", 41, 3, 45, 3))
sketch4.addConstraint(Sketcher.Constraint("Vertical", 38, 3, 48, 3))
sketch4.addConstraint(Sketcher.Constraint("Vertical", 42, 3, 49, 3))
sketch4.addConstraint(Sketcher.Constraint("Vertical", 9, 3, 51, 3))
sketch4.addConstraint(Sketcher.Constraint("Vertical", 11, 3, 55, 3))
sketch4.addConstraint(Sketcher.Constraint("Vertical", 13, 3, 58, 3))
sketch4.addConstraint(Sketcher.Constraint("Vertical", 14, 3, 59, 3))
sketch4.addConstraint(Sketcher.Constraint("Vertical", 24, 3, 61, 3))
sketch4.addConstraint(Sketcher.Constraint("Vertical", 26, 3, 65, 3))
sketch4.addConstraint(Sketcher.Constraint("Vertical", 28, 3, 68, 3))
sketch4.addConstraint(Sketcher.Constraint("Vertical", 2, 2, 15, 2))
sketch4.addConstraint(Sketcher.Constraint("Equal", 32, 36))
sketch4.addConstraint(Sketcher.Constraint("Equal", 44, 2))
sketch4.addConstraint(Sketcher.Constraint("Equal", 22, 16))
sketch4.addConstraint(Sketcher.Constraint("Equal", 2, 30))
sketch4.addConstraint(Sketcher.Constraint("Radius", 4, 2.0))
sketch4.addConstraint(Sketcher.Constraint("Diameter", 6, 3.6))
sketch4.addConstraint(Sketcher.Constraint("DistanceX", 25, 1, 25, 2, 3.6))
sketch4.addConstraint(Sketcher.Constraint("DistanceX", -1, 1, 14, 3, 30.8))
sketch4.addConstraint(Sketcher.Constraint("DistanceX", -1, 1, 4, 1, 3.8))
sketch4.addConstraint(Sketcher.Constraint("DistanceY", 29, 2, -1, 1, 3.8))
sketch4.addConstraint(Sketcher.Constraint("DistanceY", 6, 3, -1, 1, 92.71))
sketch4.addConstraint(Sketcher.Constraint("Radius", 1, 1.94))
sketch4.addConstraint(Sketcher.Constraint("DistanceY", 1, 3, -1, 1, 93.345))
sketch4.addConstraint(Sketcher.Constraint("DistanceX", -1, 1, 9, 3, 29.0))
sketch4.addConstraint(Sketcher.Constraint("DistanceX", -1, 1, 42, 3, 93.345))
sketch4.addConstraint(Sketcher.Constraint("DistanceX", 7, 2, 7, 1, 13.63))
sketch4.addConstraint(Sketcher.Constraint("DistanceX", 0, 2, 0, 1, 4.435))
sketch4.addConstraint(Sketcher.Constraint("DistanceX", -1, 1, 13, 3, 36.83))
sketch4.addConstraint(Sketcher.Constraint("DistanceY", 18, 3, -1, 1, 62.01))
sketch4.addConstraint(Sketcher.Constraint("DistanceY", 21, 3, -1, 1, 63.81))
sketch4.addConstraint(Sketcher.Constraint("DistanceX", -1, 1, 24, 3, 65.83))
sketch4.addConstraint(Sketcher.Constraint("DistanceX", -1, 1, 28, 3, 67.63))
sketch4.addConstraint(Sketcher.Constraint("DistanceX", -1, 1, 41, 3, 93.98))
pad4 = body.newObject("PartDesign::Pad", "Pad003")
pad4.Profile = sketch4
pad4.Length = 4.4
pad4.Reversed = True
doc.recompute()

chamfer = body.newObject("PartDesign::Chamfer", "Chamfer")
chamfer.Base = (pad4, edges_at(pad4, [
    (97.72, -1, -46.355),
    (96.625, -1, 3.28),
    (46.672, -1, 4.375),
    (-3.28, -1, 3.28),
    (-4.375, -1, -46.355),
    (-3.28, -1, -95.99),
    (46.672, -1, -97.085),
    (96.625, -1, -95.99),
]))
chamfer.Size = 1

doc.recompute()
